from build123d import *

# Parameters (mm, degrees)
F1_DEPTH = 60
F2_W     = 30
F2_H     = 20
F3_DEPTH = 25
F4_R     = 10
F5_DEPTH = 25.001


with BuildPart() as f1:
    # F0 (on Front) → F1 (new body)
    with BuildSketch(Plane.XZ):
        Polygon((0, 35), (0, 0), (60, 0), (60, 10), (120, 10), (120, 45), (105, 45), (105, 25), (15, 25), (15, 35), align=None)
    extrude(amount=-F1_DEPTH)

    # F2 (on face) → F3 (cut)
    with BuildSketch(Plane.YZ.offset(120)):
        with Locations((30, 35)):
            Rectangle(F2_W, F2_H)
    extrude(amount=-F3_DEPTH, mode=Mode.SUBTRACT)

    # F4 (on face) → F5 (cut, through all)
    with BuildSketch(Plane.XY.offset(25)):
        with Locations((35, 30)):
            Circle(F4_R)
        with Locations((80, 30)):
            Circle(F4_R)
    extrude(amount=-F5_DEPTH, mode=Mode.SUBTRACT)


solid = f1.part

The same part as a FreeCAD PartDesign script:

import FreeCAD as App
import Part
import Sketcher
Q = App.Units.Quantity


def add_polygon(sketch, points):
    """Adds a closed chain of lines whose ends are joined by coincident constraints."""
    first, n = sketch.GeometryCount, len(points)
    for a, b in zip(points, points[1:] + points[:1]):
        sketch.addGeometry(Part.LineSegment(App.Vector(*a, 0), App.Vector(*b, 0)), False)
    for i in range(n):
        sketch.addConstraint(Sketcher.Constraint("Coincident", first + i, 2, first + (i + 1) % n, 1))

doc = App.newDocument("Part")
body = doc.addObject("PartDesign::Body", "Body")

# Sketch on XZ plane
sketch1 = body.newObject("Sketcher::SketchObject", "Sketch")
sketch1.AttachmentSupport = (doc.getObject("XZ_Plane"), [""])
sketch1.MapMode = "FlatFace"
add_polygon(sketch1, [(0, 35), (0, 0), (60, 0), (60, 10), (120, 10), (120, 45), (105, 45), (105, 25), (15, 25), (15, 35)])  # lines 0-9
sketch1.addConstraint([
    Sketcher.Constraint("Vertical", 0),
    Sketcher.Constraint("Horizontal", 1),
    Sketcher.Constraint("Vertical", 2),
    Sketcher.Constraint("Horizontal", 3),
    Sketcher.Constraint("Vertical", 4),
    Sketcher.Constraint("Horizontal", 5),
    Sketcher.Constraint("Vertical", 6),
    Sketcher.Constraint("Horizontal", 7),
    Sketcher.Constraint("Vertical", 8),
    Sketcher.Constraint("Horizontal", 9),
    Sketcher.Constraint("Coincident", 0, 2, -1, 1),
    Sketcher.Constraint("Equal", 1, 3),
    Sketcher.Constraint("Equal", 5, 9),
    Sketcher.Constraint("Equal", 0, 4),
    Sketcher.Constraint("Equal", 2, 8),
    Sketcher.Constraint("DistanceX", 1, 1, 1, 2, Q("60 mm")),
    Sketcher.Constraint("DistanceX", 5, 2, 5, 1, Q("15 mm")),
    Sketcher.Constraint("DistanceY", 0, 2, 0, 1, Q("35 mm")),
    Sketcher.Constraint("DistanceY", 2, 1, 2, 2, Q("10 mm")),
])
pad1 = body.newObject("PartDesign::Pad", "Pad")
pad1.Profile = sketch1
pad1.Length = 60
pad1.Reversed = True

# Sketch on YZ plane
sketch2 = body.newObject("Sketcher::SketchObject", "Sketch001")
sketch2.AttachmentSupport = (doc.getObject("YZ_Plane"), [""])
sketch2.MapMode = "FlatFace"
sketch2.AttachmentOffset = App.Placement(App.Vector(0, 0, 120), App.Rotation())
add_polygon(sketch2, [(15, 45), (15, 25), (45, 25), (45, 45)])  # lines 0-3
sketch2.addConstraint([
    Sketcher.Constraint("Vertical", 0),
    Sketcher.Constraint("Horizontal", 1),
    Sketcher.Constraint("Vertical", 2),
    Sketcher.Constraint("Horizontal", 3),
    Sketcher.Constraint("DistanceX", 1, 1, 1, 2, Q("30 mm")),
    Sketcher.Constraint("DistanceY", 0, 2, 0, 1, Q("20 mm")),
    Sketcher.Constraint("DistanceX", -1, 1, 0, 2, Q("15 mm")),
    Sketcher.Constraint("DistanceY", -1, 1, 0, 2, Q("25 mm")),
])
pocket1 = body.newObject("PartDesign::Pocket", "Pocket")
pocket1.Profile = sketch2
pocket1.Length = 25

# Sketch on XY plane
sketch3 = body.newObject("Sketcher::SketchObject", "Sketch002")
sketch3.AttachmentSupport = (doc.getObject("XY_Plane"), [""])
sketch3.MapMode = "FlatFace"
sketch3.AttachmentOffset = App.Placement(App.Vector(0, 0, 25), App.Rotation())
sketch3.addGeometry([
    Part.Circle(App.Vector(35, 30, 0), App.Vector(0, 0, 1), 10),
    Part.Circle(App.Vector(80, 30, 0), App.Vector(0, 0, 1), 10),
], False)
sketch3.addConstraint([
    Sketcher.Constraint("Equal", 0, 1),
    Sketcher.Constraint("Horizontal", 0, 3, 1, 3),
    Sketcher.Constraint("Diameter", 0, Q("20 mm")),
    Sketcher.Constraint("DistanceX", -1, 1, 0, 3, Q("35 mm")),
    Sketcher.Constraint("DistanceY", -1, 1, 0, 3, Q("30 mm")),
    Sketcher.Constraint("DistanceX", -1, 1, 1, 3, Q("80 mm")),
])
pocket2 = body.newObject("PartDesign::Pocket", "Pocket001")
pocket2.Profile = sketch3
pocket2.Type = "ThroughAll"

doc.recompute()
